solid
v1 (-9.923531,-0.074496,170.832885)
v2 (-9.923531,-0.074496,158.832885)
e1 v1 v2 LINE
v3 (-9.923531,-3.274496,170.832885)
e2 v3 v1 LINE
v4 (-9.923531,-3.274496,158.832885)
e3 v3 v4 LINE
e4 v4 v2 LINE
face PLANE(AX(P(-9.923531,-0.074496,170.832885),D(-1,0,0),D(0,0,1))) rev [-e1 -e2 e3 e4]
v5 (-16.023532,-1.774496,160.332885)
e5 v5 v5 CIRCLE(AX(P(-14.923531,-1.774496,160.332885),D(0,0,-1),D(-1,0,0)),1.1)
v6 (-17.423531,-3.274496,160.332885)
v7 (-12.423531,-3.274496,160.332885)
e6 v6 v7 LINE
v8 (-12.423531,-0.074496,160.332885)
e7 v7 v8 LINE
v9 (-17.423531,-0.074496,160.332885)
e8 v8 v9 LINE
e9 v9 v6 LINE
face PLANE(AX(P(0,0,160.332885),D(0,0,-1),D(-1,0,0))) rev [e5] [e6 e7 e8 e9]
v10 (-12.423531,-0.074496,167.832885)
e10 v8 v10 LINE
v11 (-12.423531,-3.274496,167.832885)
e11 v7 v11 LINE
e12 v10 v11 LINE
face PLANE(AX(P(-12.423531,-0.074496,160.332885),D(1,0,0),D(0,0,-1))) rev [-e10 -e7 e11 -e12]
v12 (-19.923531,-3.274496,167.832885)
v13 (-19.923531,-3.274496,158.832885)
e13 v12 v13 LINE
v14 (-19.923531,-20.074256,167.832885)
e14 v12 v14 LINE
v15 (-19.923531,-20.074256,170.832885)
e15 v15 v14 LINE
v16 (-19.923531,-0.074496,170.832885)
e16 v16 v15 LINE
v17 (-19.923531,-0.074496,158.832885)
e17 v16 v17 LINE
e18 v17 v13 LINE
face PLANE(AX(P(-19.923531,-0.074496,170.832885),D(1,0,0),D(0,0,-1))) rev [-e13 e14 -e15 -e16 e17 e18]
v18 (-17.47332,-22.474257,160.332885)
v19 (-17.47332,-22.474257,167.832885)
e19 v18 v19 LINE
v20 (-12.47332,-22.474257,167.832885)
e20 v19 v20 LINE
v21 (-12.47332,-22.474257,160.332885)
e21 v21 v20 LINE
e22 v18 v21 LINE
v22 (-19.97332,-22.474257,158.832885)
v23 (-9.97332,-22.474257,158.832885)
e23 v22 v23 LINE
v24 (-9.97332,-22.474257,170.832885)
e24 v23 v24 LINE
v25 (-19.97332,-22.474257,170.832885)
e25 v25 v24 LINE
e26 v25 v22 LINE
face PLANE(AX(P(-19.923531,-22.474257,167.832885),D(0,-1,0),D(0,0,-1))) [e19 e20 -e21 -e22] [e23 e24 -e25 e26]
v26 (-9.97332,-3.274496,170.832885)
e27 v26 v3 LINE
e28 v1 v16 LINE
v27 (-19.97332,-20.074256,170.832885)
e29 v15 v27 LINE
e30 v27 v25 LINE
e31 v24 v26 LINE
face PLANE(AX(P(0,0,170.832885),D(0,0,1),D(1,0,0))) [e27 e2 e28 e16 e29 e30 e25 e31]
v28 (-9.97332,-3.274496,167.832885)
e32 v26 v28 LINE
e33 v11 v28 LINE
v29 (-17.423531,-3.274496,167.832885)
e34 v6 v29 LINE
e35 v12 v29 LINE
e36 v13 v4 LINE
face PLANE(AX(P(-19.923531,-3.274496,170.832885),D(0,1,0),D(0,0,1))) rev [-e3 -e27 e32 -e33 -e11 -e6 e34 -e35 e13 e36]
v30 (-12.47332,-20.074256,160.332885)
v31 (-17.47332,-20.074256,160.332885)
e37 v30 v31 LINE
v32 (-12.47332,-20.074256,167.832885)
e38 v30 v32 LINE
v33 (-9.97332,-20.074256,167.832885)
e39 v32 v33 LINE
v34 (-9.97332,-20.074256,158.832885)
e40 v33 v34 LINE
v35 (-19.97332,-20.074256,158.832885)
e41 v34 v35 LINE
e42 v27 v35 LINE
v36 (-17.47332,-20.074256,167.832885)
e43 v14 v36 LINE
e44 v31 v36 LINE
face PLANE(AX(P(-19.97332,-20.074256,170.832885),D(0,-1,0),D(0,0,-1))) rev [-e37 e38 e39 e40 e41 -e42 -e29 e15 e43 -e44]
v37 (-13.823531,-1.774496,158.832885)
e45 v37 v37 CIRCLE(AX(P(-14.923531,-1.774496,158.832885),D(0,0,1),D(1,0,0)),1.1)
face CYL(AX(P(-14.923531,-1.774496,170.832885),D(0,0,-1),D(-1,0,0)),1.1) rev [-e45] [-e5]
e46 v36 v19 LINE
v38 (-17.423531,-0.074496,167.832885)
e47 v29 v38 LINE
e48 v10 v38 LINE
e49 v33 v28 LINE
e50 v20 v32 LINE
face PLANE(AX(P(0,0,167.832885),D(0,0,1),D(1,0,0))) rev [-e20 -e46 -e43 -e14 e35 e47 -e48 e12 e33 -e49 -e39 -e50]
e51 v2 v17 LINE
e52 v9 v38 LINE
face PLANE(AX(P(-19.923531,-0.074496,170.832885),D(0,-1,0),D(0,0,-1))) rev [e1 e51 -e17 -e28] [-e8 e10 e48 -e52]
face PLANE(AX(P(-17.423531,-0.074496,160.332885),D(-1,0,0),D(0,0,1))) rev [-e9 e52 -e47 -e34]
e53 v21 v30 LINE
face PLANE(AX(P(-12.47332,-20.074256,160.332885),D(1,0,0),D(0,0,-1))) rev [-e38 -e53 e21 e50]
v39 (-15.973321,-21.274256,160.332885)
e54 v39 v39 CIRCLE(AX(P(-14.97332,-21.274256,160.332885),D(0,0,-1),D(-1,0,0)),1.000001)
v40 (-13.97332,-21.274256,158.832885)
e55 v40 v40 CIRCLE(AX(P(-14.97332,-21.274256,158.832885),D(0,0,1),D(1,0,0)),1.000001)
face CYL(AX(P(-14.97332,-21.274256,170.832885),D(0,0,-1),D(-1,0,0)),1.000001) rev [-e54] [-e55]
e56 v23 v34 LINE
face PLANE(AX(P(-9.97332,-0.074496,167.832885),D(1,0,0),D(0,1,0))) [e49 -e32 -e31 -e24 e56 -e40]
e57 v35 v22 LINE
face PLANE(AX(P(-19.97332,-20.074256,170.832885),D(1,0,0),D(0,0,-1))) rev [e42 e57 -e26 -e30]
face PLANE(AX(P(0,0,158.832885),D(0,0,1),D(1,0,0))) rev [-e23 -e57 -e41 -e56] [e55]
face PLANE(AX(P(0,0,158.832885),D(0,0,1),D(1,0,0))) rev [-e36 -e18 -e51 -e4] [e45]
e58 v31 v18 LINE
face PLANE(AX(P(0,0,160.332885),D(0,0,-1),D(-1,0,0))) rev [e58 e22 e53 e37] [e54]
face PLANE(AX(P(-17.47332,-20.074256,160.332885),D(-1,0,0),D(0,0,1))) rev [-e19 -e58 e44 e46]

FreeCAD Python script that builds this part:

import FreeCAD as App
import Part
import Sketcher
Q = App.Units.Quantity

doc = App.newDocument("Part")
params = doc.addObject("Spreadsheet::Sheet", "Params")
for row, (alias, value) in enumerate([
    ("sketch1_diameter", "2.200001 mm"),
    ("sketch1_width", "10 mm"),
    ("sketch1_height", "3.2 mm"),
    ("pad1_length", "12 mm"),
    ("sketch2_diameter", "2.000001 mm"),
    ("sketch2_width", "10 mm"),
    ("sketch2_height", "2.400001 mm"),
    ("pad2_length", "12 mm"),
    ("sketch3_width", "5 mm"),
    ("sketch3_height", "3.2 mm"),
    ("sketch3_height2", "2.400001 mm"),
    ("pad3_length", "10.5 mm"),
    ("pad4_length", "3 mm"),
], start=1):
    params.set(f"A{row}", alias)
    params.set(f"B{row}", "=" + value)
    params.setAlias(f"B{row}", alias)

body = doc.addObject("PartDesign::Body", "Body")

sketch1 = doc.addObject("Sketcher::SketchObject", "Sketch")
body.addObject(sketch1)
sketch1.AttachmentSupport = (doc.XY_Plane, [""])
sketch1.MapMode = "FlatFace"
sketch1.AttachmentOffset = App.Placement(App.Vector(0, 0, 158.832885), App.Rotation())
sketch1.addGeometry([
    Part.LineSegment(App.Vector(-19.9, -0.1, 0), App.Vector(-19.9, -3.3, 0)),
    Part.LineSegment(App.Vector(-19.9, -3.3, 0), App.Vector(-9.9, -3.3, 0)),
    Part.LineSegment(App.Vector(-9.9, -3.3, 0), App.Vector(-9.9, -0.1, 0)),
    Part.LineSegment(App.Vector(-9.9, -0.1, 0), App.Vector(-19.9, -0.1, 0)),
    Part.Circle(App.Vector(-14.9, -1.8, 0), App.Vector(0, 0, 1), 1.1),
], False)
sketch1.addConstraint([
    Sketcher.Constraint("Coincident", 0, 2, 1, 1),
    Sketcher.Constraint("Coincident", 1, 2, 2, 1),
    Sketcher.Constraint("Coincident", 2, 2, 3, 1),
    Sketcher.Constraint("Coincident", 3, 2, 0, 1),
    Sketcher.Constraint("Vertical", 0),
    Sketcher.Constraint("Horizontal", 1),
    Sketcher.Constraint("Vertical", 2),
    Sketcher.Constraint("Horizontal", 3),
    Sketcher.Constraint("Diameter", 4, Q("2.200001 mm")),
    Sketcher.Constraint("DistanceX", 1, 1, 1, 2, Q("10 mm")),
    Sketcher.Constraint("DistanceY", 0, 2, 0, 1, Q("3.2 mm")),
    Sketcher.Constraint("DistanceX", 0, 2, 4, 3, Q("5 mm")),
    Sketcher.Constraint("DistanceY", 0, 2, 4, 3, Q("1.5 mm")),
    Sketcher.Constraint("DistanceX", 4, 3, -1, 1, Q("14.923531 mm")),
    Sketcher.Constraint("DistanceY", 4, 3, -1, 1, Q("1.774496 mm")),
])
sketch1.setExpression("Constraints[8]", "Params.sketch1_diameter")
sketch1.setExpression("Constraints[9]", "Params.sketch1_width")
sketch1.setExpression("Constraints[10]", "Params.sketch1_height")
pad1 = doc.addObject("PartDesign::Pad", "Pad")
body.addObject(pad1)
pad1.Profile = sketch1
pad1.setExpression("Length", "Params.pad1_length")
body2 = doc.addObject("PartDesign::Body", "Body001")

sketch2 = doc.addObject("Sketcher::SketchObject", "Sketch001")
body2.addObject(sketch2)
sketch2.AttachmentSupport = (doc.getObject("XY_Plane001"), [""])
sketch2.MapMode = "FlatFace"
sketch2.AttachmentOffset = App.Placement(App.Vector(0, 0, 158.832885), App.Rotation())
sketch2.addGeometry([
    Part.LineSegment(App.Vector(-20, -20.1, 0), App.Vector(-20, -22.5, 0)),
    Part.LineSegment(App.Vector(-20, -22.5, 0), App.Vector(-10, -22.5, 0)),
    Part.LineSegment(App.Vector(-10, -22.5, 0), App.Vector(-10, -20.1, 0)),
    Part.LineSegment(App.Vector(-10, -20.1, 0), App.Vector(-20, -20.1, 0)),
    Part.Circle(App.Vector(-15, -21.3, 0), App.Vector(0, 0, 1), 1),
], False)
sketch2.addConstraint([
    Sketcher.Constraint("Coincident", 0, 2, 1, 1),
    Sketcher.Constraint("Coincident", 1, 2, 2, 1),
    Sketcher.Constraint("Coincident", 2, 2, 3, 1),
    Sketcher.Constraint("Coincident", 3, 2, 0, 1),
    Sketcher.Constraint("Vertical", 0),
    Sketcher.Constraint("Horizontal", 1),
    Sketcher.Constraint("Vertical", 2),
    Sketcher.Constraint("Horizontal", 3),
    Sketcher.Constraint("Diameter", 4, Q("2.000001 mm")),
    Sketcher.Constraint("DistanceX", 1, 1, 1, 2, Q("10 mm")),
    Sketcher.Constraint("DistanceY", 0, 2, 0, 1, Q("2.400001 mm")),
    Sketcher.Constraint("DistanceX", 0, 2, 4, 3, Q("5 mm")),
    Sketcher.Constraint("DistanceY", 0, 2, 4, 3, Q("1.200001 mm")),
    Sketcher.Constraint("DistanceX", 4, 3, -1, 1, Q("14.97332 mm")),
    Sketcher.Constraint("DistanceY", 4, 3, -1, 1, Q("21.274256 mm")),
])
sketch2.setExpression("Constraints[8]", "Params.sketch2_diameter")
sketch2.setExpression("Constraints[9]", "Params.sketch2_width")
sketch2.setExpression("Constraints[10]", "Params.sketch2_height")
pad2 = doc.addObject("PartDesign::Pad", "Pad001")
body2.addObject(pad2)
pad2.Profile = sketch2
pad2.setExpression("Length", "Params.pad2_length")
body3 = doc.addObject("PartDesign::Body", "Body002")
body3.AllowCompound = True

sketch3 = doc.addObject("Sketcher::SketchObject", "Sketch002")
body3.addObject(sketch3)
sketch3.AttachmentSupport = (doc.getObject("XY_Plane002"), [""])
sketch3.MapMode = "FlatFace"
sketch3.AttachmentOffset = App.Placement(App.Vector(0, 0, 170.832885), App.Rotation())
sketch3.addGeometry([
    Part.LineSegment(App.Vector(-17.4, -0.1, 0), App.Vector(-17.4, -3.3, 0)),
    Part.LineSegment(App.Vector(-17.4, -3.3, 0), App.Vector(-12.4, -3.3, 0)),
    Part.LineSegment(App.Vector(-12.4, -3.3, 0), App.Vector(-12.4, -0.1, 0)),
    Part.LineSegment(App.Vector(-12.4, -0.1, 0), App.Vector(-17.4, -0.1, 0)),
    Part.LineSegment(App.Vector(-17.5, -20.1, 0), App.Vector(-17.5, -22.5, 0)),
    Part.LineSegment(App.Vector(-17.5, -22.5, 0), App.Vector(-12.5, -22.5, 0)),
    Part.LineSegment(App.Vector(-12.5, -22.5, 0), App.Vector(-12.5, -20.1, 0)),
    Part.LineSegment(App.Vector(-12.5, -20.1, 0), App.Vector(-17.5, -20.1, 0)),
], False)
sketch3.addConstraint([
    Sketcher.Constraint("Coincident", 0, 2, 1, 1),
    Sketcher.Constraint("Coincident", 1, 2, 2, 1),
    Sketcher.Constraint("Coincident", 2, 2, 3, 1),
    Sketcher.Constraint("Coincident", 3, 2, 0, 1),
    Sketcher.Constraint("Coincident", 4, 2, 5, 1),
    Sketcher.Constraint("Coincident", 5, 2, 6, 1),
    Sketcher.Constraint("Coincident", 6, 2, 7, 1),
    Sketcher.Constraint("Coincident", 7, 2, 4, 1),
    Sketcher.Constraint("Vertical", 0),
    Sketcher.Constraint("Horizontal", 1),
    Sketcher.Constraint("Vertical", 2),
    Sketcher.Constraint("Horizontal", 3),
    Sketcher.Constraint("Vertical", 4),
    Sketcher.Constraint("Horizontal", 5),
    Sketcher.Constraint("Vertical", 6),
    Sketcher.Constraint("Horizontal", 7),
    Sketcher.Constraint("Equal", 3, 5),
    Sketcher.Constraint("DistanceX", 1, 1, 1, 2, Q("5 mm")),
    Sketcher.Constraint("DistanceY", 0, 2, 0, 1, Q("3.2 mm")),
    Sketcher.Constraint("DistanceY", 4, 2, 4, 1, Q("2.400001 mm")),
    Sketcher.Constraint("DistanceX", 0, 2, -1, 1, Q("17.423531 mm")),
    Sketcher.Constraint("DistanceX", 4, 2, -1, 1, Q("17.47332 mm")),
    Sketcher.Constraint("DistanceY", 4, 2, 0, 2, Q("19.199761 mm")),
    Sketcher.Constraint("DistanceY", 0, 2, -1, 1, Q("3.274496 mm")),
])
sketch3.setExpression("Constraints[17]", "Params.sketch3_width")
sketch3.setExpression("Constraints[18]", "Params.sketch3_height")
sketch3.setExpression("Constraints[19]", "Params.sketch3_height2")
pad3 = doc.addObject("PartDesign::Pad", "Pad002")
body3.addObject(pad3)
pad3.Profile = sketch3
pad3.setExpression("Length", "Params.pad3_length")
pad3.Reversed = True
doc.recompute()

body4 = doc.addObject("PartDesign::Body", "Body003")
body4.BaseFeature = body3
boolean = doc.addObject("PartDesign::Boolean", "Boolean")
body.addObject(boolean)
boolean.Type = "Cut"
boolean.addObjects([body4])
doc.recompute()

boolean2 = doc.addObject("PartDesign::Boolean", "Boolean001")
body2.addObject(boolean2)
boolean2.Type = "Cut"
boolean2.addObjects([body3])
body.AllowCompound = True
doc.recompute()

boolean3 = doc.addObject("PartDesign::Boolean", "Boolean002")
body.addObject(boolean3)
boolean3.Type = "Fuse"
boolean3.addObjects([body2])

sketch4 = doc.addObject("Sketcher::SketchObject", "Sketch003")
body.addObject(sketch4)
sketch4.AttachmentSupport = (doc.XY_Plane, [""])
sketch4.MapMode = "FlatFace"
sketch4.AttachmentOffset = App.Placement(App.Vector(0, 0, 170.832885), App.Rotation())
sketch4.addGeometry([
    Part.LineSegment(App.Vector(-20, 0, 0), App.Vector(-20, -22, 0)),
    Part.LineSegment(App.Vector(-20, -22, 0), App.Vector(-10, -22, 0)),
    Part.LineSegment(App.Vector(-10, -22, 0), App.Vector(-10, 0, 0)),
    Part.LineSegment(App.Vector(-10, 0, 0), App.Vector(-20, 0, 0)),
], False)
sketch4.addConstraint([
    Sketcher.Constraint("Coincident", 0, 2, 1, 1),
    Sketcher.Constraint("Coincident", 1, 2, 2, 1),
    Sketcher.Constraint("Coincident", 2, 2, 3, 1),
    Sketcher.Constraint("Coincident", 3, 2, 0, 1),
    Sketcher.Constraint("Vertical", 0),
    Sketcher.Constraint("Horizontal", 1),
    Sketcher.Constraint("Vertical", 2),
    Sketcher.Constraint("Horizontal", 3),
    Sketcher.Constraint("DistanceX", 1, 1, 1, 2, Q("9.950211 mm")),
    Sketcher.Constraint("DistanceY", 0, 2, 0, 1, Q("22.399761 mm")),
    Sketcher.Constraint("DistanceX", 0, 2, -1, 1, Q("19.923531 mm")),
    Sketcher.Constraint("DistanceY", 0, 2, -1, 1, Q("22.474257 mm")),
])
pad4 = doc.addObject("PartDesign::Pad", "Pad003")
body.addObject(pad4)
pad4.Profile = sketch4
pad4.setExpression("Length", "Params.pad4_length")
pad4.Reversed = True

doc.recompute()
